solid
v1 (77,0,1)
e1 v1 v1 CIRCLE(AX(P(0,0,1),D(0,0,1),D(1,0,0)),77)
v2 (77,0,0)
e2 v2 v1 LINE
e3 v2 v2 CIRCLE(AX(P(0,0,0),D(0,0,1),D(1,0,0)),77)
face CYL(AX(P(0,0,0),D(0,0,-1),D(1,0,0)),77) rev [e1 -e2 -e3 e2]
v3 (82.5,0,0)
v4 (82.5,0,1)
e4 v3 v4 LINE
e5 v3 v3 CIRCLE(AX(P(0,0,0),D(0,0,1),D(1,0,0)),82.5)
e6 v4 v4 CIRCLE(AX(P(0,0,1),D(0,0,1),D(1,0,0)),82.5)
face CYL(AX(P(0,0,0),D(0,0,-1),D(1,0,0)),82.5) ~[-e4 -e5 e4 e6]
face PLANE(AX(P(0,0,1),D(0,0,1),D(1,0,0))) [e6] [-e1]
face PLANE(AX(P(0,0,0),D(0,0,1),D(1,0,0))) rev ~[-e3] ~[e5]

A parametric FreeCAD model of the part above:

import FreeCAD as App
import Part
import Sketcher
Q = App.Units.Quantity

doc = App.newDocument("Part")
body = doc.addObject("PartDesign::Body", "Body")

# Sketch on XY plane
sketch1 = body.newObject("Sketcher::SketchObject", "Sketch")
sketch1.AttachmentSupport = (doc.getObject("XY_Plane"), [""])
sketch1.MapMode = "FlatFace"
sketch1.addGeometry(Part.Circle(App.Vector(0, 0, 0), App.Vector(0, 0, 1), 82), False)
sketch1.addGeometry(Part.Circle(App.Vector(0, 0, 0), App.Vector(0, 0, 1), 77), False)
sketch1.addConstraint(Sketcher.Constraint("Coincident", 0, 3, -1, 1))
sketch1.addConstraint(Sketcher.Constraint("Coincident", 1, 3, -1, 1))
sketch1.addConstraint(Sketcher.Constraint("Diameter", 0, Q("165 mm")))
sketch1.addConstraint(Sketcher.Constraint("Diameter", 1, Q("154 mm")))
pad1 = body.newObject("PartDesign::Pad", "Pad")
pad1.Profile = sketch1
pad1.Length = 1

doc.recompute()
